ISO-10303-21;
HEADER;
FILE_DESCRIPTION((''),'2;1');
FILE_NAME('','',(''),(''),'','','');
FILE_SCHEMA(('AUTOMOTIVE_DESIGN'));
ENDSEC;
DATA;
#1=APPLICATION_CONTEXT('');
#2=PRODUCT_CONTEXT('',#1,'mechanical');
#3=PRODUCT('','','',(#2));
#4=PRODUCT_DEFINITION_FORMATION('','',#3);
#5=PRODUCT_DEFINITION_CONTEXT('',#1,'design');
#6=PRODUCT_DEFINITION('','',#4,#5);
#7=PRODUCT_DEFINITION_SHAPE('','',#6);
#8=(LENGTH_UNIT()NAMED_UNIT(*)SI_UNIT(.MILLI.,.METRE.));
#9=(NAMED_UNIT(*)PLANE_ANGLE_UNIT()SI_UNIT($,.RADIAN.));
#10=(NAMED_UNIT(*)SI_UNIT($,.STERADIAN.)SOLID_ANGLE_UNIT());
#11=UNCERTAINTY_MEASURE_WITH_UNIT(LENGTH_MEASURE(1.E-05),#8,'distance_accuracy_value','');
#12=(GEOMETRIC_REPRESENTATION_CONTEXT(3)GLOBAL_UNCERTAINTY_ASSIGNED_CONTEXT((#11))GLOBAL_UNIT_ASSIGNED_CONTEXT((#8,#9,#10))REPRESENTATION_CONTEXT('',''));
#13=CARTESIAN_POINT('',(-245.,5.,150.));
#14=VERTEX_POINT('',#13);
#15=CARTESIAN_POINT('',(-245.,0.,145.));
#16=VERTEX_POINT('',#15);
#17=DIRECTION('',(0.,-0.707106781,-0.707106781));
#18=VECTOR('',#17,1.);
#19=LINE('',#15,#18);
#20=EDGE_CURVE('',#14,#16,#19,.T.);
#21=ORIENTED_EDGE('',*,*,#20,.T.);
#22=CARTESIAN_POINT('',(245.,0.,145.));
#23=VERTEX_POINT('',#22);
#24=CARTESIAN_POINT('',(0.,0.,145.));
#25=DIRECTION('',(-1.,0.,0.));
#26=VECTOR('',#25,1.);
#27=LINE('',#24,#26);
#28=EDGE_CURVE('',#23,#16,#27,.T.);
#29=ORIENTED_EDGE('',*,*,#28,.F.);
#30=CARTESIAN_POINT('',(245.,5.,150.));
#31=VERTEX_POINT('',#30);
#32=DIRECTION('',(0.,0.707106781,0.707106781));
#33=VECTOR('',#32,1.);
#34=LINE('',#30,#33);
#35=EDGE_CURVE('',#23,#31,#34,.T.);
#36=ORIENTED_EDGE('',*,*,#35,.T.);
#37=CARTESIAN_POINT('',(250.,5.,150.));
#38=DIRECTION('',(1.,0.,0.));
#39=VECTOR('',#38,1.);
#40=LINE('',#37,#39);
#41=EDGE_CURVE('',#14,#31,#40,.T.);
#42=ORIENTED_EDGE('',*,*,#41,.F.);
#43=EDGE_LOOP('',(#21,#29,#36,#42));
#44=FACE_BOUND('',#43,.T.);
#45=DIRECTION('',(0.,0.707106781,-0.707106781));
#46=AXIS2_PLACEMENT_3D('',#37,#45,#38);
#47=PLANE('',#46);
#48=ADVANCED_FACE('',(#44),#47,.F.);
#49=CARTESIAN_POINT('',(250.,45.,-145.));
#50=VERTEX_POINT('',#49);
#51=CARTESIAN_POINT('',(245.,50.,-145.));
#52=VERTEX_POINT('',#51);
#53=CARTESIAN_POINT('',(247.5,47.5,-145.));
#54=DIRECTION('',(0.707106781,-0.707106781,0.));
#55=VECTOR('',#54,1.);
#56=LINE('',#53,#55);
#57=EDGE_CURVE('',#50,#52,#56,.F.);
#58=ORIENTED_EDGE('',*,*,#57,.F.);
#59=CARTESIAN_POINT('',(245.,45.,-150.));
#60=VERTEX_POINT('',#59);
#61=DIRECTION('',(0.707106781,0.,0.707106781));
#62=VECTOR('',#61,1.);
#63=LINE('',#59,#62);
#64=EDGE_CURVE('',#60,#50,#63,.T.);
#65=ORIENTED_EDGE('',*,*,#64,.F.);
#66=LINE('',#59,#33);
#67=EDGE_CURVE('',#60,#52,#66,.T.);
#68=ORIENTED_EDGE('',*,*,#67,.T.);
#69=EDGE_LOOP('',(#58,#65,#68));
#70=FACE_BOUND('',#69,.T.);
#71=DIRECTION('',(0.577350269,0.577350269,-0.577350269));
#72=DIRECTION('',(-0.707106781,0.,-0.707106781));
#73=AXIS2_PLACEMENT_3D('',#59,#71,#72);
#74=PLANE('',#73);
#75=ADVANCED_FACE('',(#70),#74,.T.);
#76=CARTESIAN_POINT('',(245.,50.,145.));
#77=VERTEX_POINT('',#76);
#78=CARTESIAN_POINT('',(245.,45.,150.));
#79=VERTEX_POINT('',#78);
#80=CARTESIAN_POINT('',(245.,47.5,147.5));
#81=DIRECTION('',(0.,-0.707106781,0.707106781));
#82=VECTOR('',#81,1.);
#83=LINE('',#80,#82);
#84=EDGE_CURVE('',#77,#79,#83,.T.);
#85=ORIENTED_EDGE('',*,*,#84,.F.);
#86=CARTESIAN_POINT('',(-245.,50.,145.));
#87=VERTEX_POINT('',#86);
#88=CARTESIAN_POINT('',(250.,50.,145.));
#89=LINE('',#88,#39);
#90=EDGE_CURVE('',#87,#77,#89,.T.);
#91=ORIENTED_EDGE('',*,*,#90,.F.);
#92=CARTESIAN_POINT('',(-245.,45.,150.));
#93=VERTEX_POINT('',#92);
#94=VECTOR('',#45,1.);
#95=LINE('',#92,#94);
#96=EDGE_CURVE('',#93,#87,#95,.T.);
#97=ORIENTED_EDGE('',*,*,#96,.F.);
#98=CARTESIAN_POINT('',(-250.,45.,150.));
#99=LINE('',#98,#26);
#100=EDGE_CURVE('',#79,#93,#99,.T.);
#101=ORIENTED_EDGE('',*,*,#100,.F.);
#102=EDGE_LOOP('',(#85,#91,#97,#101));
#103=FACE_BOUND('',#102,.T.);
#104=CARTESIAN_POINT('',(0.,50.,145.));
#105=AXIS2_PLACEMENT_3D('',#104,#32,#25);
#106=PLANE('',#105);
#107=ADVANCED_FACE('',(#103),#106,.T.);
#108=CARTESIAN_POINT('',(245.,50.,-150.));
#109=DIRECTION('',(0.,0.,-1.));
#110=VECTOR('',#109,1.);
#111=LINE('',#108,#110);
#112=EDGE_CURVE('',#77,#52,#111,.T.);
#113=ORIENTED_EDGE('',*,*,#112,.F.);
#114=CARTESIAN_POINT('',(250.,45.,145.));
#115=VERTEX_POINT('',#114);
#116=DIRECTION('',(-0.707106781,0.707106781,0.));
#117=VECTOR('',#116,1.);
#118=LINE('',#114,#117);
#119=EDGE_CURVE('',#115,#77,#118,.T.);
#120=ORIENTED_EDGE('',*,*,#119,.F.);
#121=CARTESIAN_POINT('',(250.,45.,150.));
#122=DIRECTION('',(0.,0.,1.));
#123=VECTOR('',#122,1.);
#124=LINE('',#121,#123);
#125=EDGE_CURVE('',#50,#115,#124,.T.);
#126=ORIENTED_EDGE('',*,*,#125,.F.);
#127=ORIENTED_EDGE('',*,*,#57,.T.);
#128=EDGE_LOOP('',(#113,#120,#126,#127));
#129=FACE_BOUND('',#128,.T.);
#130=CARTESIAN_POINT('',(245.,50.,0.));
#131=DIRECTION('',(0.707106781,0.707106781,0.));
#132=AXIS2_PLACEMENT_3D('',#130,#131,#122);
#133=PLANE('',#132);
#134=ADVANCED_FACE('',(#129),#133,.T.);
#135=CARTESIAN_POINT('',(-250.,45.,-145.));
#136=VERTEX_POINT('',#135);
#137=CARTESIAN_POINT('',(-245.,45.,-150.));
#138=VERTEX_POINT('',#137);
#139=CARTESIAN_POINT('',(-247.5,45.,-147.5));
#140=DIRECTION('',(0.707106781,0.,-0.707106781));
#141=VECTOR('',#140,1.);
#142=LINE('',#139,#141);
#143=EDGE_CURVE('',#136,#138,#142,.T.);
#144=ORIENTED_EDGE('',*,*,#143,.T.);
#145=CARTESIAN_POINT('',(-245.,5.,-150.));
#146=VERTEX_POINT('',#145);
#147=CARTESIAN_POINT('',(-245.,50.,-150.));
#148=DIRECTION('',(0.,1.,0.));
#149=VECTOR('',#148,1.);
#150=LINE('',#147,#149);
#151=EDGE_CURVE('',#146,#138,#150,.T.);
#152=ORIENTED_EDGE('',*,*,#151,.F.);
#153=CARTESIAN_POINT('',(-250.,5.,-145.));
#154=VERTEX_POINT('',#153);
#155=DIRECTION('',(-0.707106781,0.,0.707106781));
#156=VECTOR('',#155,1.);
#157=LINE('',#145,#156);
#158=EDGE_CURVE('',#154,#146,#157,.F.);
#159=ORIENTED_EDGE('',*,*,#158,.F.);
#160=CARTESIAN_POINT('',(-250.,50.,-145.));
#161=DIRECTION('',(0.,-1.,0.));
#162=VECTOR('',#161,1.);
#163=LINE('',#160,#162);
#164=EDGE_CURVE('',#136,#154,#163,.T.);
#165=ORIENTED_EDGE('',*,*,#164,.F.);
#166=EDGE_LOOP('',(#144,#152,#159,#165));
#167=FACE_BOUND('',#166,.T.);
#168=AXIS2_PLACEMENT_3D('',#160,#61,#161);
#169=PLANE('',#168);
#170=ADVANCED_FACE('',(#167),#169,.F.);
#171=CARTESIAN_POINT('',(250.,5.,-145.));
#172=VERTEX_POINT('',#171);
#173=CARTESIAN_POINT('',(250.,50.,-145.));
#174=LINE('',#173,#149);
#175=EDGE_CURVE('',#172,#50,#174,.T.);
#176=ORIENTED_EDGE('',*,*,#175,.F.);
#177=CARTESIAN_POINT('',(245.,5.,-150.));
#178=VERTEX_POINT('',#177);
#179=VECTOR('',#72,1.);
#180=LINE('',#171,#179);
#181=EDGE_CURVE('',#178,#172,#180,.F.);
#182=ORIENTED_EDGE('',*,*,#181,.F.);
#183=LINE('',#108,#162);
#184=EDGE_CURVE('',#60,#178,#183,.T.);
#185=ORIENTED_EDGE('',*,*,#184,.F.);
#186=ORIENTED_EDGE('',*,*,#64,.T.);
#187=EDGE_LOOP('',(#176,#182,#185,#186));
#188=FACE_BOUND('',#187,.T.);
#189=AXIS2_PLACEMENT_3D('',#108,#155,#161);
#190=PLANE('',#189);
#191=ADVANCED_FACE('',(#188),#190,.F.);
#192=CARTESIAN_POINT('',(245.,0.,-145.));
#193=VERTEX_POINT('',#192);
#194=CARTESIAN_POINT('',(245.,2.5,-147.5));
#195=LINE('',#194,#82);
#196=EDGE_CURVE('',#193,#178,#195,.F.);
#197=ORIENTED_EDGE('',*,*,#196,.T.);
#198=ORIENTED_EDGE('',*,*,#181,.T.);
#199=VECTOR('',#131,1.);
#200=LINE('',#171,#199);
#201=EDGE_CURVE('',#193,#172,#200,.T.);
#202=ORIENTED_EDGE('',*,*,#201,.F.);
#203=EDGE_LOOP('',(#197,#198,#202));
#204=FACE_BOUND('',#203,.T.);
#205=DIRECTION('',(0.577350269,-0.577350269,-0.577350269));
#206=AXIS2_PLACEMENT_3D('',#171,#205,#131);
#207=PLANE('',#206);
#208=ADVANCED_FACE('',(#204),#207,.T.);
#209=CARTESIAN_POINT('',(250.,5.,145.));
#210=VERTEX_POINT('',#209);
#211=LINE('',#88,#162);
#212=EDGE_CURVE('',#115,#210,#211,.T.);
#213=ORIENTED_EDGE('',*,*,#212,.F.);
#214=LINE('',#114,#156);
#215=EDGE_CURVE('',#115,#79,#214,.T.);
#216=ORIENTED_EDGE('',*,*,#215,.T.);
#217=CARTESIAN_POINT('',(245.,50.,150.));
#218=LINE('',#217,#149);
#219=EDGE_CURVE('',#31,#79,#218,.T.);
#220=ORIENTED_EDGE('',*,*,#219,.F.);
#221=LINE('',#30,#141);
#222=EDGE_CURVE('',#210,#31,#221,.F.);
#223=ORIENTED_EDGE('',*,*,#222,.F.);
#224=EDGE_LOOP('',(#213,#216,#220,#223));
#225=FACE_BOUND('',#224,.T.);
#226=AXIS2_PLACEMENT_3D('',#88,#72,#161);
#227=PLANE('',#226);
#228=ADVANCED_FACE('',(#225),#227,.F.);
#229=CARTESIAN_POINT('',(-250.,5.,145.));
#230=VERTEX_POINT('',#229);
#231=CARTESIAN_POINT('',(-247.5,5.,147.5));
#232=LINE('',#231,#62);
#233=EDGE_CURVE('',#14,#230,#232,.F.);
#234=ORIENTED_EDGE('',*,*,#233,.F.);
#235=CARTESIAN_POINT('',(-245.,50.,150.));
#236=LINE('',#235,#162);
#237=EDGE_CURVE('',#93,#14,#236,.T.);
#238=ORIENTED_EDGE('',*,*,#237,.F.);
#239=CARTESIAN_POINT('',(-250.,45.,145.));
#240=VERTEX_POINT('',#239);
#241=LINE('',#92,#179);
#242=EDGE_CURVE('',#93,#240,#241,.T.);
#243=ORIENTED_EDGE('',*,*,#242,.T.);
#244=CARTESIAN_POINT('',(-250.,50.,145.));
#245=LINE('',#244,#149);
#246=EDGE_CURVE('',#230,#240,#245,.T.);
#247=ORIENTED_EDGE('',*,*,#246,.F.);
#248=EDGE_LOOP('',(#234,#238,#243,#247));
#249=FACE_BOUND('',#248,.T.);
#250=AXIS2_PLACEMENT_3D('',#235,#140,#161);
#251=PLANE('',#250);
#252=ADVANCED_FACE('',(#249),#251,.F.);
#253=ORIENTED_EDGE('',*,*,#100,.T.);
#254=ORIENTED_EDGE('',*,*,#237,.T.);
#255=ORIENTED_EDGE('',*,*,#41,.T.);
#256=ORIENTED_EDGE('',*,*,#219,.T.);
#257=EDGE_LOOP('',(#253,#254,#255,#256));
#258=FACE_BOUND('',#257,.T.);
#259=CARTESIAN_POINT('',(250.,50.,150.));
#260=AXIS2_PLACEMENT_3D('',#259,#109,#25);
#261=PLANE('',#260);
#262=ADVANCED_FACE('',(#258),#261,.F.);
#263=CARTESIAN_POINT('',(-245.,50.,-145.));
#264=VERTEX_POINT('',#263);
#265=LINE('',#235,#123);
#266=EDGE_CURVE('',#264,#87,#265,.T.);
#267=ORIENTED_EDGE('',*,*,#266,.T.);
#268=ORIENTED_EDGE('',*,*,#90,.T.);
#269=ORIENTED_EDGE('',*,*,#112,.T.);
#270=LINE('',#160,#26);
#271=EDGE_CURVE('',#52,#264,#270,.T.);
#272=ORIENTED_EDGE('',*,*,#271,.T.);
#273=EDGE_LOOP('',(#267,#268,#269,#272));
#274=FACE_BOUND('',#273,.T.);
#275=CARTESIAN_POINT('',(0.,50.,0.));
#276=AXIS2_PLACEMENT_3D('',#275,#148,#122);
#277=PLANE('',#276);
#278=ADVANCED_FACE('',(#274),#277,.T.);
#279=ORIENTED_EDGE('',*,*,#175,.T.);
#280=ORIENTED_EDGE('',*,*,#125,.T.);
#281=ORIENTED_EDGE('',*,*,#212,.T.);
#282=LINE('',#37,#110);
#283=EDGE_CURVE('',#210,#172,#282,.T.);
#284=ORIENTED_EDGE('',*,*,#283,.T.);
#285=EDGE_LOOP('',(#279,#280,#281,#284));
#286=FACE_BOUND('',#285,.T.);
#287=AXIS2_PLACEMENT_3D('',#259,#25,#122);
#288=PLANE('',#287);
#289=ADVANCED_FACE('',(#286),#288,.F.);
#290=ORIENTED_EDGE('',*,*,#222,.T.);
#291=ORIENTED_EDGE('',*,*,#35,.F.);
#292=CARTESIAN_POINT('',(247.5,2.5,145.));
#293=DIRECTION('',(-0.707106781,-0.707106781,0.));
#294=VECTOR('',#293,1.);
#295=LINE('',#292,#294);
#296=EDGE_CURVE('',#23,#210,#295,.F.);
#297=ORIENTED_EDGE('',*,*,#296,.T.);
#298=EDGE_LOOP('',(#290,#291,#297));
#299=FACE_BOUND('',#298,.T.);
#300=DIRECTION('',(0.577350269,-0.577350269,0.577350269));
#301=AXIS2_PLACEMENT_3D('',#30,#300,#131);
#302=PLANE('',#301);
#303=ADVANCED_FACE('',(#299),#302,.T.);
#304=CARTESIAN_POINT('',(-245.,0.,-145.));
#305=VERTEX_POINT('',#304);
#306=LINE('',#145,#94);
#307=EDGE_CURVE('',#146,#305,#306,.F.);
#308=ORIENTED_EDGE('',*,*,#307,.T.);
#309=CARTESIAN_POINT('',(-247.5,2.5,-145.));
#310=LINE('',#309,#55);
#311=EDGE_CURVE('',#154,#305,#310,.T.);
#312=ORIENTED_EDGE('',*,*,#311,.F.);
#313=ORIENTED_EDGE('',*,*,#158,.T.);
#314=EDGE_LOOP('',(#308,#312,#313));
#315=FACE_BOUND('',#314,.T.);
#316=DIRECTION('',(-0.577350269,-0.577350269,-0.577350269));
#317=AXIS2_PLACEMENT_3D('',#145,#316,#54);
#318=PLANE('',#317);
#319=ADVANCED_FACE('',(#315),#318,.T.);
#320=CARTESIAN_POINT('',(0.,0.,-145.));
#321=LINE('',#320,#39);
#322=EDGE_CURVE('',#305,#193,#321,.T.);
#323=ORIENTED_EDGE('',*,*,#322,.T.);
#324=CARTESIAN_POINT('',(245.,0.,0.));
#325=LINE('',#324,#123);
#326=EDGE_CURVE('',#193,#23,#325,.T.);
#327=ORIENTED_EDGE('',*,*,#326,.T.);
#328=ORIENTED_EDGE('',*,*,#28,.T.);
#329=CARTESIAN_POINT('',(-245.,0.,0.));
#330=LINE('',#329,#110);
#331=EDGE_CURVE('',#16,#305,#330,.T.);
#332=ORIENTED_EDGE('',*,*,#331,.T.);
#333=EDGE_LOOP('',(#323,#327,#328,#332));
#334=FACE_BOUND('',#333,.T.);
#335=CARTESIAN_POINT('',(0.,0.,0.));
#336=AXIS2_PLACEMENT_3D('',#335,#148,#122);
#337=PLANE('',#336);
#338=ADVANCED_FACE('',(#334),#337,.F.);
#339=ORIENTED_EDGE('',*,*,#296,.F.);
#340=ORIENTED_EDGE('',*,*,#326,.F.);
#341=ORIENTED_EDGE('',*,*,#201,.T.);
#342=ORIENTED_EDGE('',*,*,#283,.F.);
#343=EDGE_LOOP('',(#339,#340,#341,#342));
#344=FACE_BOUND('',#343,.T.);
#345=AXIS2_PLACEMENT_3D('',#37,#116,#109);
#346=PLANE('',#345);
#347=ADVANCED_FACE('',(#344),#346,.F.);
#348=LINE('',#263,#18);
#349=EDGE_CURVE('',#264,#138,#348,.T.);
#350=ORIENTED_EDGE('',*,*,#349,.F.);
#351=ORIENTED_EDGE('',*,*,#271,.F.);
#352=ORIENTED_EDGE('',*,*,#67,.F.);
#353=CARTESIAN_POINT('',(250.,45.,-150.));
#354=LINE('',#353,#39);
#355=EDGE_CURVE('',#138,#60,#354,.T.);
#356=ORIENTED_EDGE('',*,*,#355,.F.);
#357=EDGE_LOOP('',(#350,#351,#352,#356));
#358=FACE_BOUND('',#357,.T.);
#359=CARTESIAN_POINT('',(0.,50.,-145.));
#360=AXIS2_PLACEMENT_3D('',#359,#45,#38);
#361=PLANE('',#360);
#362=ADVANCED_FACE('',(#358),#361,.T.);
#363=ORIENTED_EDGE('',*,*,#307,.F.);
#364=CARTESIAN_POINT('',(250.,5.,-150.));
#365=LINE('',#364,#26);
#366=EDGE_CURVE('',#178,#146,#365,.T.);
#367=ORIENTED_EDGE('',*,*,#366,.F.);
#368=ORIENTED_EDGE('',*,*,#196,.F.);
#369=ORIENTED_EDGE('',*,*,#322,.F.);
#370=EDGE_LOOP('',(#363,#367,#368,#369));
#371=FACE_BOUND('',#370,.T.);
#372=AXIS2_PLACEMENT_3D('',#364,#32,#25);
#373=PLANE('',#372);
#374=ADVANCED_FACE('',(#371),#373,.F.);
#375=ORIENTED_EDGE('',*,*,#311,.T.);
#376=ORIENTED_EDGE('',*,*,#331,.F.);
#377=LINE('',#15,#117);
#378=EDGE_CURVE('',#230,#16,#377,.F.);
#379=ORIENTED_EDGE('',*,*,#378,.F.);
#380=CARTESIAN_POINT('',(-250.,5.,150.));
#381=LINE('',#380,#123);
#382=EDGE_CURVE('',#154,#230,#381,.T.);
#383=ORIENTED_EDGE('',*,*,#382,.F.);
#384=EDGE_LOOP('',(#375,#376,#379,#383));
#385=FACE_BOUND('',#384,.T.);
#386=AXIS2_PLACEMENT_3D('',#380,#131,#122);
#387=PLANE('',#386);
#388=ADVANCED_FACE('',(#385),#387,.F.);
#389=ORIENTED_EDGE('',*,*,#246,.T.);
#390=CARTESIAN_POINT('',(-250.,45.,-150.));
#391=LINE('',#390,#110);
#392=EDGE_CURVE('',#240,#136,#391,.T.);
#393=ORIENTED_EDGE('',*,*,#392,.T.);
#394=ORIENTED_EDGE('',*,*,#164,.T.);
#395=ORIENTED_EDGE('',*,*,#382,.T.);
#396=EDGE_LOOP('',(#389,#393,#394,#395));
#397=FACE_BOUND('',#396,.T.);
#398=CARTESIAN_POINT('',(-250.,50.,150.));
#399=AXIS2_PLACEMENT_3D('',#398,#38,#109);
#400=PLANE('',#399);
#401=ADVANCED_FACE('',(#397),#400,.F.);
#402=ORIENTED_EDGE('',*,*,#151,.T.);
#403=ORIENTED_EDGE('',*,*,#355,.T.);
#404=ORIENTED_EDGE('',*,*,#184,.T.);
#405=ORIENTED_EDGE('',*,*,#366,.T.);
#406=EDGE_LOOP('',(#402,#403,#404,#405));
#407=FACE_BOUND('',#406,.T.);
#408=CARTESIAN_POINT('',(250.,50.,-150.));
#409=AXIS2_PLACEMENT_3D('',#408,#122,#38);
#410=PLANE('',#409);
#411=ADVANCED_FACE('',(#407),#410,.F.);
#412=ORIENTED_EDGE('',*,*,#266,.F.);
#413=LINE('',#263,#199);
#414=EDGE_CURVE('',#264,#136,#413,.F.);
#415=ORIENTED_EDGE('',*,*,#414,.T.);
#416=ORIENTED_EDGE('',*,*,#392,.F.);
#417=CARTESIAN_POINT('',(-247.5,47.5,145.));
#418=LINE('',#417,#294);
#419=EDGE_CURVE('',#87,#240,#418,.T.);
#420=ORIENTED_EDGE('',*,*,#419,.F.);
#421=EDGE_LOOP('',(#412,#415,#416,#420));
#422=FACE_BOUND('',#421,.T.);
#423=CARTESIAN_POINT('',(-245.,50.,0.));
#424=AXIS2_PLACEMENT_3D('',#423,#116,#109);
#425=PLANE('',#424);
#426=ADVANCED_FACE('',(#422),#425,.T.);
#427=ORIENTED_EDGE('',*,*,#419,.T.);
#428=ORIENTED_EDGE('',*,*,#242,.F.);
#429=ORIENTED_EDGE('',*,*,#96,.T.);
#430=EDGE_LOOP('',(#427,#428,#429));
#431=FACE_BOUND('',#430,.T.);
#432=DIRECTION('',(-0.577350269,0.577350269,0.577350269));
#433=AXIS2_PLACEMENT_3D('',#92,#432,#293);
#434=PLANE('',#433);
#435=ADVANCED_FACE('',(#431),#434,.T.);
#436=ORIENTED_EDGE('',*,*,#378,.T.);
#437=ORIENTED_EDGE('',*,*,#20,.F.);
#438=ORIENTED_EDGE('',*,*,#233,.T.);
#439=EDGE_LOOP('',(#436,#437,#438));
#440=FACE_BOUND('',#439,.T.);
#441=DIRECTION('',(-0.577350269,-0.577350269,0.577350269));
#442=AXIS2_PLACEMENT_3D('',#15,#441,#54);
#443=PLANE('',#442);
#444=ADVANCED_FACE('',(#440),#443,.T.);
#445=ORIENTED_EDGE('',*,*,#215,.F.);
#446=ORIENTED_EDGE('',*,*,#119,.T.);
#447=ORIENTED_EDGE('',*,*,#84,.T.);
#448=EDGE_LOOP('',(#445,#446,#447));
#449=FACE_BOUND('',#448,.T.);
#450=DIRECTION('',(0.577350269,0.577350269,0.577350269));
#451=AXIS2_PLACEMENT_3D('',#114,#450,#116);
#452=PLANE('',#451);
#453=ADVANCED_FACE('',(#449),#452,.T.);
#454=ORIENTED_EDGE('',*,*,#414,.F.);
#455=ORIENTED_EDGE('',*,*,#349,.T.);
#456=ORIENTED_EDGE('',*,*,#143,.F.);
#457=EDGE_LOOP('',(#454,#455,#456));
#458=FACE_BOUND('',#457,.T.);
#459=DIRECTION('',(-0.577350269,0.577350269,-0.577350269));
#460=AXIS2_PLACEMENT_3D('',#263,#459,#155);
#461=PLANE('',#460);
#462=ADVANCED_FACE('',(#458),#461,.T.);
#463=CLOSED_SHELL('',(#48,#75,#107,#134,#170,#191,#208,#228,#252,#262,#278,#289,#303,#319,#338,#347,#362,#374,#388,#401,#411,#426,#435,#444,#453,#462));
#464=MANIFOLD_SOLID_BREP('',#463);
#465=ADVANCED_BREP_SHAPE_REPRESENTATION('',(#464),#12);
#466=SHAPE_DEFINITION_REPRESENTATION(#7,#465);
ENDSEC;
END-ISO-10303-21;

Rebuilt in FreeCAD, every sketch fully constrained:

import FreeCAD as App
import Part
import Sketcher
Q = App.Units.Quantity


def add_polygon(sketch, points):
    """Adds a closed chain of lines whose ends are joined by coincident constraints."""
    first, n = sketch.GeometryCount, len(points)
    for a, b in zip(points, points[1:] + points[:1]):
        sketch.addGeometry(Part.LineSegment(App.Vector(*a, 0), App.Vector(*b, 0)), False)
    for i in range(n):
        sketch.addConstraint(Sketcher.Constraint("Coincident", first + i, 2, first + (i + 1) % n, 1))

doc = App.newDocument("Part")
params = doc.addObject("Spreadsheet::Sheet", "Params")
for row, (alias, value) in enumerate([
    ("sketch1_width", "500 mm"),
    ("sketch1_height", "300 mm"),
    ("pad1_length", "50 mm"),
    ("chamfer_size", "5 mm"),
], start=1):
    params.set(f"A{row}", alias)
    params.set(f"B{row}", "=" + value)
    params.setAlias(f"B{row}", alias)

body = doc.addObject("PartDesign::Body", "Body")

sketch1 = body.newObject("Sketcher::SketchObject", "Sketch")
sketch1.AttachmentSupport = (doc.getObject("XZ_Plane"), [""])
sketch1.MapMode = "FlatFace"
add_polygon(sketch1, [(-250, -150), (-250, 150), (250, 150), (250, -150)])
sketch1.addConstraint([
    Sketcher.Constraint("Vertical", 0),
    Sketcher.Constraint("Horizontal", 1),
    Sketcher.Constraint("Vertical", 2),
    Sketcher.Constraint("Horizontal", 3),
    Sketcher.Constraint("Symmetric", 0, 2, 2, 2, -1, 1),
    Sketcher.Constraint("DistanceX", 1, 1, 1, 2, Q("500 mm")),
    Sketcher.Constraint("DistanceY", 0, 1, 0, 2, Q("300 mm")),
])
sketch1.setExpression("Constraints[9]", "Params.sketch1_width")
sketch1.setExpression("Constraints[10]", "Params.sketch1_height")
pad1 = body.newObject("PartDesign::Pad", "Pad")
pad1.Profile = sketch1
pad1.setExpression("Length", "Params.pad1_length")
pad1.Reversed = True
doc.recompute()

chamfer = body.newObject("PartDesign::Chamfer", "Chamfer")
chamfer.Base = (pad1, ["Edge1"])
chamfer.UseAllEdges = True
chamfer.setExpression("Size", "Params.chamfer_size")

doc.recompute()
